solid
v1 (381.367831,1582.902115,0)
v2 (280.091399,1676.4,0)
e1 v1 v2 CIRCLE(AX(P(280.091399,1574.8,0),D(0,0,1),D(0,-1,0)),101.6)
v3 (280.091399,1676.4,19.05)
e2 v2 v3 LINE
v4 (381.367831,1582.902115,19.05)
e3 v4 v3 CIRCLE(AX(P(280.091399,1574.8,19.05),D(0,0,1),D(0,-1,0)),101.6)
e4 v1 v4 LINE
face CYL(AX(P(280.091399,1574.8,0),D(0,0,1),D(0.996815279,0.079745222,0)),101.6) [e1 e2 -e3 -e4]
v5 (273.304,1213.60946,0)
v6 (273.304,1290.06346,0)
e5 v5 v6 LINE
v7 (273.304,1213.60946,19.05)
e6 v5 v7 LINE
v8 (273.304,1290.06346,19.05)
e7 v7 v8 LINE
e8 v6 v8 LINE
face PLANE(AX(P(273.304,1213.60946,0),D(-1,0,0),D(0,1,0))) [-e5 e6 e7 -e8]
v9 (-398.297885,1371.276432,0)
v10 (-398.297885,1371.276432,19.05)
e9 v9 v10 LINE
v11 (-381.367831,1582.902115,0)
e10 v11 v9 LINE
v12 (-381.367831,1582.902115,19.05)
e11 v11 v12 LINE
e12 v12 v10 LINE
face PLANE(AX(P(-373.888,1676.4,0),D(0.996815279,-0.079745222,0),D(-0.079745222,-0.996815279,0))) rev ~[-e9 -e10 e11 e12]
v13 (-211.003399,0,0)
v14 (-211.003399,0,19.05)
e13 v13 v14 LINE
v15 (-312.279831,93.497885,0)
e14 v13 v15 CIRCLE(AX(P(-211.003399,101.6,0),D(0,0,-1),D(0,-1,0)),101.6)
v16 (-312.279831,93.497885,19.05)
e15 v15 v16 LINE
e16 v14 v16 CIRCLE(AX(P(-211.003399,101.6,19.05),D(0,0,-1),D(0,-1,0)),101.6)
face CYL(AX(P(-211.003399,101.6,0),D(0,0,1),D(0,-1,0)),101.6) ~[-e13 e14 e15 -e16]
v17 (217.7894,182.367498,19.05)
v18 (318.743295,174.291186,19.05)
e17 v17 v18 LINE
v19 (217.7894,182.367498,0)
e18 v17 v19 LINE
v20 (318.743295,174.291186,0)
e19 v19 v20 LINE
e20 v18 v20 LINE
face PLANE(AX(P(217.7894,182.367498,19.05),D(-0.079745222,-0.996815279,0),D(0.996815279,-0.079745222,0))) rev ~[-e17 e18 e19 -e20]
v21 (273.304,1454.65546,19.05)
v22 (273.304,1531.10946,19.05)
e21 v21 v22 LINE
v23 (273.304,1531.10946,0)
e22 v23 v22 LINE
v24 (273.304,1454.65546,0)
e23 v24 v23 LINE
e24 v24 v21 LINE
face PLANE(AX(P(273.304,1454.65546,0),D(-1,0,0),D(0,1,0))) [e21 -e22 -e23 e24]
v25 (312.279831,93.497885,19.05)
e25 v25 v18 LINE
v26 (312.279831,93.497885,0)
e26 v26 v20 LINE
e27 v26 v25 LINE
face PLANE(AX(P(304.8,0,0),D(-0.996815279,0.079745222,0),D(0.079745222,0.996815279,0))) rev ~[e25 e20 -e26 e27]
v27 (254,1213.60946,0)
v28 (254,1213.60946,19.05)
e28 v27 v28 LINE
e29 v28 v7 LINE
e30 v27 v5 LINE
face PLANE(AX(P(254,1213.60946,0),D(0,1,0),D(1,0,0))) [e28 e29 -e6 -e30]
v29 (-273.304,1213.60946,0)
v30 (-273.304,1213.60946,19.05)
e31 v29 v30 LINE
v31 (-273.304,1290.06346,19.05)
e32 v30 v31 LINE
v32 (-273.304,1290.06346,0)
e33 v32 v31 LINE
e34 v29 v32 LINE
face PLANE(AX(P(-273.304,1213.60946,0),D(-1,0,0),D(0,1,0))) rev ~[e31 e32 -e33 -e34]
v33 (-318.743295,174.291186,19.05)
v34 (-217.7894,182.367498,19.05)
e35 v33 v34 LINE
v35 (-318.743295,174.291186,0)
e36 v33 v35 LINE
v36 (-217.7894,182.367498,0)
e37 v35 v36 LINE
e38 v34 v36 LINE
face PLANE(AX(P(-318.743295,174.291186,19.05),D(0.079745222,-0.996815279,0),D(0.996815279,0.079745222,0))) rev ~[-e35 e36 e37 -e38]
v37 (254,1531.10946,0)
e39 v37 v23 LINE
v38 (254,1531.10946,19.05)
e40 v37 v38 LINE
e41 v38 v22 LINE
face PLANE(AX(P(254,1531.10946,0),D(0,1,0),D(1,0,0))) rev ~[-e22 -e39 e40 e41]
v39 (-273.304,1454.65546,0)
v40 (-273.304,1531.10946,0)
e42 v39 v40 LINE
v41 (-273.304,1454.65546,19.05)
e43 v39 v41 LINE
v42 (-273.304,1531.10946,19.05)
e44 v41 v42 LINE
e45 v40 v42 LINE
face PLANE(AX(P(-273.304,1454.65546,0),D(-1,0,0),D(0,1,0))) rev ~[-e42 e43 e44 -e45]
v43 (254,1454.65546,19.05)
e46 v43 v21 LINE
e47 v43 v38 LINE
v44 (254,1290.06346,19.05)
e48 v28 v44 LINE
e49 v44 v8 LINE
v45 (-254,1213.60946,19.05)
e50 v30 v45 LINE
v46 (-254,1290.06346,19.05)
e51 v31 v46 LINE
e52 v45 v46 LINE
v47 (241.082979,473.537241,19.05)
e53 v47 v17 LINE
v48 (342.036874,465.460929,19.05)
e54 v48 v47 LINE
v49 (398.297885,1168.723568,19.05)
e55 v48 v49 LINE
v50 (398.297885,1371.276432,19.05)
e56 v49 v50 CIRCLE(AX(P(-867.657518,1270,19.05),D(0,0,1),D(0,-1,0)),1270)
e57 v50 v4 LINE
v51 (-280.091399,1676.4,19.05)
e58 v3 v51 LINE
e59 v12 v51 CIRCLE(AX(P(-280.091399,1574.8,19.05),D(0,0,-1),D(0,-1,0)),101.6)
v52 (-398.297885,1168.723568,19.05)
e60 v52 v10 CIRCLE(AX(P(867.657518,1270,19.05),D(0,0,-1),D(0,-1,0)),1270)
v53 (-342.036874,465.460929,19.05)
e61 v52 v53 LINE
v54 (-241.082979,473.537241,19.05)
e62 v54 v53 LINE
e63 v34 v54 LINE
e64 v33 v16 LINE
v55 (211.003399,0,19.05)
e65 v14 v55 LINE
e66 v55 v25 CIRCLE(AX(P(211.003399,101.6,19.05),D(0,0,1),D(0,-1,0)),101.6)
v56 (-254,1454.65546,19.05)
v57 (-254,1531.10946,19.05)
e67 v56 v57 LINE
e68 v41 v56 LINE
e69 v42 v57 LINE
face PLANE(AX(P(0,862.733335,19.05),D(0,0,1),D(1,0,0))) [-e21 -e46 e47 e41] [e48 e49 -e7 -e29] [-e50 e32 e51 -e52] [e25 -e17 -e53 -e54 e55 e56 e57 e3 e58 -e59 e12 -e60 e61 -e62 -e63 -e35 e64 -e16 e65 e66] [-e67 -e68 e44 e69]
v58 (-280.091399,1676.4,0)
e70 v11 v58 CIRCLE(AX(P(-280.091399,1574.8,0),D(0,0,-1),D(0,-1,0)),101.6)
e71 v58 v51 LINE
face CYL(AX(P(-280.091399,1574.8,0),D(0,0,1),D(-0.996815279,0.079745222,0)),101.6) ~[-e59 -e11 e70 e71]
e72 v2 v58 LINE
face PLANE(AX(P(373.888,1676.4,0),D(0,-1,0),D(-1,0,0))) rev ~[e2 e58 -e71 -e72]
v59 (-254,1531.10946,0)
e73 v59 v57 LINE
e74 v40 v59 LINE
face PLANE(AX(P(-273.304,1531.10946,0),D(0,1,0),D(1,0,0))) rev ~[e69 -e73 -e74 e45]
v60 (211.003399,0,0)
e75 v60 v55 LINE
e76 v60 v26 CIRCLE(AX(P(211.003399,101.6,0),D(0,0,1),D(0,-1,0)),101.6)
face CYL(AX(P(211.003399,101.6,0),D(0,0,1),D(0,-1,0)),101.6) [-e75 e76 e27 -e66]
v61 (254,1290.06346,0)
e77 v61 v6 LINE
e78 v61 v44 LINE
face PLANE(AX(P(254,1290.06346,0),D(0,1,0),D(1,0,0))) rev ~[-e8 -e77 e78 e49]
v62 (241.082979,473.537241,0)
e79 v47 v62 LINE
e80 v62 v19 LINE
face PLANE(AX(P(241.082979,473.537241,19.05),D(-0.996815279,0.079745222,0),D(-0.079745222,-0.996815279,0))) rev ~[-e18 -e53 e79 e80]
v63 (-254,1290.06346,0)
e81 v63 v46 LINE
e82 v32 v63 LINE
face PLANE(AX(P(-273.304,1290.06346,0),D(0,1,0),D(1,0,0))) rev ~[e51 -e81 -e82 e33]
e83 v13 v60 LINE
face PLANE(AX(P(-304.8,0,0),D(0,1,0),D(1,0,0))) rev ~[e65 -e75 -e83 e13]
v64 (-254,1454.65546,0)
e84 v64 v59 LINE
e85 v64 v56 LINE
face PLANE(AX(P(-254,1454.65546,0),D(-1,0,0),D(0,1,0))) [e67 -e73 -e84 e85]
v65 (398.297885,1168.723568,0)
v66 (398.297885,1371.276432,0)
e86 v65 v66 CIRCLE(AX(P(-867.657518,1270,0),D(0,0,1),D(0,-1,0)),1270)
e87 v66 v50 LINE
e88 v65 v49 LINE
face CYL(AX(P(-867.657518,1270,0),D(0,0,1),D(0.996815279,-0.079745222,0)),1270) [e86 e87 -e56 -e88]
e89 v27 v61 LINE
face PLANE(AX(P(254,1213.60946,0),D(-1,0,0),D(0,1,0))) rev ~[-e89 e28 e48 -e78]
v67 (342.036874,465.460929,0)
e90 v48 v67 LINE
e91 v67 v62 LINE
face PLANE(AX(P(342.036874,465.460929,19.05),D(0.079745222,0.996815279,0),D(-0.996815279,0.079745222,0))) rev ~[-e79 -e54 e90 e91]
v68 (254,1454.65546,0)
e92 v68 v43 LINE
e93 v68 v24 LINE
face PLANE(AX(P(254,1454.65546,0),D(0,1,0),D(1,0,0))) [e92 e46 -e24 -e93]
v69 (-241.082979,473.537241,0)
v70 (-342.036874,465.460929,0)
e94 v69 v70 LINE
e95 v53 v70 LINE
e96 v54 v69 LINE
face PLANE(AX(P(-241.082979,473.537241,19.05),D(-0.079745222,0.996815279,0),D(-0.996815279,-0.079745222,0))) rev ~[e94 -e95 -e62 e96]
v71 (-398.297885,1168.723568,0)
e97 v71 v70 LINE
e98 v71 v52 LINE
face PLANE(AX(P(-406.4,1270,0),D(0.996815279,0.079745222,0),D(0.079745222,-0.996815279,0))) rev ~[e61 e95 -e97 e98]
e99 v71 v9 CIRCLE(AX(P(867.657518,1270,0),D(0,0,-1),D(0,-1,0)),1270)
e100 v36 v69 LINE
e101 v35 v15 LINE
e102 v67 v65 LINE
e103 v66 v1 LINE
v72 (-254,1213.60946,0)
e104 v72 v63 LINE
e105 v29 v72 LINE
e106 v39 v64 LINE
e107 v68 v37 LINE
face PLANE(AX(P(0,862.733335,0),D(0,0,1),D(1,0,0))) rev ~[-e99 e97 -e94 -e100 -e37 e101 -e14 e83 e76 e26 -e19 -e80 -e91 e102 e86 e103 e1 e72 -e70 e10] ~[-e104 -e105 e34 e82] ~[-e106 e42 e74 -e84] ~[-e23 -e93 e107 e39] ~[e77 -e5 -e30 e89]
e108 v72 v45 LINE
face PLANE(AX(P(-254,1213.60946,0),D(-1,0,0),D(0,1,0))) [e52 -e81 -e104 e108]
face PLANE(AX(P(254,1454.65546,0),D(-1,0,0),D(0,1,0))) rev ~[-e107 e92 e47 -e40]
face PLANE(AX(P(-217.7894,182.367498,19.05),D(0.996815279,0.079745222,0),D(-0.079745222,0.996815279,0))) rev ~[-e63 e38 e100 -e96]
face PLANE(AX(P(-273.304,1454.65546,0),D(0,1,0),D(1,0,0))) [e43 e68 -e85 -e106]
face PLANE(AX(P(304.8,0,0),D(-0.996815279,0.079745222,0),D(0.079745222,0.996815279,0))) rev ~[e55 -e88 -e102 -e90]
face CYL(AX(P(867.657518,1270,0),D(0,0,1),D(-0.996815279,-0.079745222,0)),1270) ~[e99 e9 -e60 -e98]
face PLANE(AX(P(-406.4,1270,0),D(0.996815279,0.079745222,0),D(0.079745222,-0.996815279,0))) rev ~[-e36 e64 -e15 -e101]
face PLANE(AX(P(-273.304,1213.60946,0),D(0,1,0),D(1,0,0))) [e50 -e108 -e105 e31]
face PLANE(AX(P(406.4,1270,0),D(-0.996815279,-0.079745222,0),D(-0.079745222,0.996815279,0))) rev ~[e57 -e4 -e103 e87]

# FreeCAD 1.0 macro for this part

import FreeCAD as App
import Part
import Sketcher
Q = App.Units.Quantity


def edges_at(feature, points):
    """Names of the edges that pass closest to the given points."""
    edges = feature.Shape.Edges
    near = lambda p: min(range(len(edges)), key=lambda i: edges[i].distToShape(Part.Vertex(*p))[0])
    return sorted({f"Edge{near(p) + 1}" for p in points})


def add_polygon(sketch, points):
    """Adds a closed chain of lines whose ends are joined by coincident constraints."""
    first, n = sketch.GeometryCount, len(points)
    for a, b in zip(points, points[1:] + points[:1]):
        sketch.addGeometry(Part.LineSegment(App.Vector(*a, 0), App.Vector(*b, 0)), False)
    for i in range(n):
        sketch.addConstraint(Sketcher.Constraint("Coincident", first + i, 2, first + (i + 1) % n, 1))

doc = App.newDocument("Part")
body = doc.addObject("PartDesign::Body", "Body")

# Sketch on XY plane
sketch1 = body.newObject("Sketcher::SketchObject", "Sketch")
sketch1.AttachmentSupport = (doc.getObject("XY_Plane"), [""])
sketch1.MapMode = "FlatFace"
add_polygon(sketch1, [(-305, 0), (305, 0), (406, 1270), (374, 1676), (-374, 1676), (-406, 1270)])  # lines 0-5
add_polygon(sketch1, [(-254, 1214), (-273, 1214), (-273, 1290), (-254, 1290)])  # lines 6-9
add_polygon(sketch1, [(273, 1214), (254, 1214), (254, 1290), (273, 1290)])  # lines 10-13
add_polygon(sketch1, [(-254, 1455), (-273, 1455), (-273, 1531), (-254, 1531)])  # lines 14-17
add_polygon(sketch1, [(273, 1455), (254, 1455), (254, 1531), (273, 1531)])  # lines 18-21
sketch1.addConstraint([
    Sketcher.Constraint("Horizontal", 0),
    Sketcher.Constraint("Horizontal", 3),
    Sketcher.Constraint("Horizontal", 6),
    Sketcher.Constraint("Vertical", 7),
    Sketcher.Constraint("Horizontal", 8),
    Sketcher.Constraint("Vertical", 9),
    Sketcher.Constraint("Horizontal", 10),
    Sketcher.Constraint("Vertical", 11),
    Sketcher.Constraint("Horizontal", 12),
    Sketcher.Constraint("Vertical", 13),
    Sketcher.Constraint("Horizontal", 14),
    Sketcher.Constraint("Vertical", 15),
    Sketcher.Constraint("Horizontal", 16),
    Sketcher.Constraint("Vertical", 17),
    Sketcher.Constraint("Horizontal", 18),
    Sketcher.Constraint("Vertical", 19),
    Sketcher.Constraint("Horizontal", 20),
    Sketcher.Constraint("Vertical", 21),
    Sketcher.Constraint("Symmetric", 0, 2, 5, 2, -1, 1),
    Sketcher.Constraint("Symmetric", 1, 2, 4, 2, -2),
    Sketcher.Constraint("Symmetric", 9, 2, 10, 2, -2),
    Sketcher.Constraint("Symmetric", 7, 2, 12, 2, -2),
    Sketcher.Constraint("Symmetric", 17, 2, 18, 2, -2),
    Sketcher.Constraint("Symmetric", 15, 2, 20, 2, -2),
    Sketcher.Constraint("Parallel", 1, 4),
    Sketcher.Constraint("Parallel", 2, 5),
    Sketcher.Constraint("Vertical", 7, 2, 14, 2),
    Sketcher.Constraint("Vertical", 9, 2, 16, 2),
    Sketcher.Constraint("Equal", 13, 15),
    Sketcher.Constraint("DistanceX", 0, 1, 0, 2, Q("24 in")),
    Sketcher.Constraint("DistanceX", -1, 1, 1, 2, Q("16 in")),
    Sketcher.Constraint("DistanceY", -1, 1, 1, 2, Q("50 in")),
    Sketcher.Constraint("DistanceY", -1, 1, 2, 2, Q("66 in")),
    Sketcher.Constraint("DistanceX", 8, 2, -1, 1, Q("10 in")),
    Sketcher.Constraint("DistanceX", 6, 2, 6, 1, Q("0.76 in")),
    Sketcher.Constraint("DistanceY", 7, 1, 7, 2, Q("3.01 in")),
    Sketcher.Constraint("DistanceY", 7, 2, 14, 2, Q("6.48 in")),
    Sketcher.Constraint("DistanceY", -1, 1, 6, 2, Q("47.7799 in")),
])
pad1 = body.newObject("PartDesign::Pad", "Pad")
pad1.Profile = sketch1
pad1.Length = Q("0.75 in")
doc.recompute()

fillet = body.newObject("PartDesign::Fillet", "Fillet")
fillet.Base = (pad1, edges_at(pad1, [
    (-304.8, 0, 9.525),
    (304.8, 0, 9.525),
    (-373.888, 1676.4, 9.525),
    (373.888, 1676.4, 9.525),
]))
fillet.Radius = Q("4 in")
doc.recompute()

fillet2 = body.newObject("PartDesign::Fillet", "Fillet001")
fillet2.Base = (fillet, edges_at(fillet, [(-406.4, 1270, 9.525), (406.4, 1270, 9.525)]))
fillet2.Radius = Q("50 in")

# Sketch on XY plane
sketch2 = body.newObject("Sketcher::SketchObject", "Sketch001")
sketch2.AttachmentSupport = (doc.getObject("XY_Plane"), [""])
sketch2.MapMode = "FlatFace"
sketch2.AttachmentOffset = App.Placement(App.Vector(0, 0, 0.75 * 25.4), App.Rotation())
add_polygon(sketch2, [(-218, 182), (-241, 474), (-342, 465), (-319, 174)])  # lines 0-3
add_polygon(sketch2, [(218, 182), (319, 174), (342, 465), (241, 474)])  # lines 4-7
sketch2.addConstraint([
    Sketcher.Constraint("Symmetric", 2, 2, 4, 2, -2),
    Sketcher.Constraint("Symmetric", 1, 2, 5, 2, -2),
    Sketcher.Constraint("Symmetric", 0, 2, 6, 2, -2),
    Sketcher.Constraint("Symmetric", 3, 2, 7, 2, -2),
    Sketcher.Constraint("Perpendicular", 0, 1),
    Sketcher.Constraint("Perpendicular", 1, 2),
    Sketcher.Constraint("Perpendicular", 2, 3),
    Sketcher.Constraint("Distance", 0, Q("11.5 in")),
    Sketcher.Constraint("DistanceX", 3, 2, -1, 1, Q("217.7894 mm")),
    Sketcher.Constraint("DistanceX", 0, 2, -1, 1, Q("241.082979 mm")),
    Sketcher.Constraint("DistanceY", -1, 1, 0, 2, Q("473.537241 mm")),
    Sketcher.Constraint("DistanceY", -1, 1, 1, 2, Q("465.460929 mm")),
])
pocket1 = body.newObject("PartDesign::Pocket", "Pocket")
pocket1.Profile = sketch2
pocket1.Length = Q("7.4 in")

doc.recompute()
